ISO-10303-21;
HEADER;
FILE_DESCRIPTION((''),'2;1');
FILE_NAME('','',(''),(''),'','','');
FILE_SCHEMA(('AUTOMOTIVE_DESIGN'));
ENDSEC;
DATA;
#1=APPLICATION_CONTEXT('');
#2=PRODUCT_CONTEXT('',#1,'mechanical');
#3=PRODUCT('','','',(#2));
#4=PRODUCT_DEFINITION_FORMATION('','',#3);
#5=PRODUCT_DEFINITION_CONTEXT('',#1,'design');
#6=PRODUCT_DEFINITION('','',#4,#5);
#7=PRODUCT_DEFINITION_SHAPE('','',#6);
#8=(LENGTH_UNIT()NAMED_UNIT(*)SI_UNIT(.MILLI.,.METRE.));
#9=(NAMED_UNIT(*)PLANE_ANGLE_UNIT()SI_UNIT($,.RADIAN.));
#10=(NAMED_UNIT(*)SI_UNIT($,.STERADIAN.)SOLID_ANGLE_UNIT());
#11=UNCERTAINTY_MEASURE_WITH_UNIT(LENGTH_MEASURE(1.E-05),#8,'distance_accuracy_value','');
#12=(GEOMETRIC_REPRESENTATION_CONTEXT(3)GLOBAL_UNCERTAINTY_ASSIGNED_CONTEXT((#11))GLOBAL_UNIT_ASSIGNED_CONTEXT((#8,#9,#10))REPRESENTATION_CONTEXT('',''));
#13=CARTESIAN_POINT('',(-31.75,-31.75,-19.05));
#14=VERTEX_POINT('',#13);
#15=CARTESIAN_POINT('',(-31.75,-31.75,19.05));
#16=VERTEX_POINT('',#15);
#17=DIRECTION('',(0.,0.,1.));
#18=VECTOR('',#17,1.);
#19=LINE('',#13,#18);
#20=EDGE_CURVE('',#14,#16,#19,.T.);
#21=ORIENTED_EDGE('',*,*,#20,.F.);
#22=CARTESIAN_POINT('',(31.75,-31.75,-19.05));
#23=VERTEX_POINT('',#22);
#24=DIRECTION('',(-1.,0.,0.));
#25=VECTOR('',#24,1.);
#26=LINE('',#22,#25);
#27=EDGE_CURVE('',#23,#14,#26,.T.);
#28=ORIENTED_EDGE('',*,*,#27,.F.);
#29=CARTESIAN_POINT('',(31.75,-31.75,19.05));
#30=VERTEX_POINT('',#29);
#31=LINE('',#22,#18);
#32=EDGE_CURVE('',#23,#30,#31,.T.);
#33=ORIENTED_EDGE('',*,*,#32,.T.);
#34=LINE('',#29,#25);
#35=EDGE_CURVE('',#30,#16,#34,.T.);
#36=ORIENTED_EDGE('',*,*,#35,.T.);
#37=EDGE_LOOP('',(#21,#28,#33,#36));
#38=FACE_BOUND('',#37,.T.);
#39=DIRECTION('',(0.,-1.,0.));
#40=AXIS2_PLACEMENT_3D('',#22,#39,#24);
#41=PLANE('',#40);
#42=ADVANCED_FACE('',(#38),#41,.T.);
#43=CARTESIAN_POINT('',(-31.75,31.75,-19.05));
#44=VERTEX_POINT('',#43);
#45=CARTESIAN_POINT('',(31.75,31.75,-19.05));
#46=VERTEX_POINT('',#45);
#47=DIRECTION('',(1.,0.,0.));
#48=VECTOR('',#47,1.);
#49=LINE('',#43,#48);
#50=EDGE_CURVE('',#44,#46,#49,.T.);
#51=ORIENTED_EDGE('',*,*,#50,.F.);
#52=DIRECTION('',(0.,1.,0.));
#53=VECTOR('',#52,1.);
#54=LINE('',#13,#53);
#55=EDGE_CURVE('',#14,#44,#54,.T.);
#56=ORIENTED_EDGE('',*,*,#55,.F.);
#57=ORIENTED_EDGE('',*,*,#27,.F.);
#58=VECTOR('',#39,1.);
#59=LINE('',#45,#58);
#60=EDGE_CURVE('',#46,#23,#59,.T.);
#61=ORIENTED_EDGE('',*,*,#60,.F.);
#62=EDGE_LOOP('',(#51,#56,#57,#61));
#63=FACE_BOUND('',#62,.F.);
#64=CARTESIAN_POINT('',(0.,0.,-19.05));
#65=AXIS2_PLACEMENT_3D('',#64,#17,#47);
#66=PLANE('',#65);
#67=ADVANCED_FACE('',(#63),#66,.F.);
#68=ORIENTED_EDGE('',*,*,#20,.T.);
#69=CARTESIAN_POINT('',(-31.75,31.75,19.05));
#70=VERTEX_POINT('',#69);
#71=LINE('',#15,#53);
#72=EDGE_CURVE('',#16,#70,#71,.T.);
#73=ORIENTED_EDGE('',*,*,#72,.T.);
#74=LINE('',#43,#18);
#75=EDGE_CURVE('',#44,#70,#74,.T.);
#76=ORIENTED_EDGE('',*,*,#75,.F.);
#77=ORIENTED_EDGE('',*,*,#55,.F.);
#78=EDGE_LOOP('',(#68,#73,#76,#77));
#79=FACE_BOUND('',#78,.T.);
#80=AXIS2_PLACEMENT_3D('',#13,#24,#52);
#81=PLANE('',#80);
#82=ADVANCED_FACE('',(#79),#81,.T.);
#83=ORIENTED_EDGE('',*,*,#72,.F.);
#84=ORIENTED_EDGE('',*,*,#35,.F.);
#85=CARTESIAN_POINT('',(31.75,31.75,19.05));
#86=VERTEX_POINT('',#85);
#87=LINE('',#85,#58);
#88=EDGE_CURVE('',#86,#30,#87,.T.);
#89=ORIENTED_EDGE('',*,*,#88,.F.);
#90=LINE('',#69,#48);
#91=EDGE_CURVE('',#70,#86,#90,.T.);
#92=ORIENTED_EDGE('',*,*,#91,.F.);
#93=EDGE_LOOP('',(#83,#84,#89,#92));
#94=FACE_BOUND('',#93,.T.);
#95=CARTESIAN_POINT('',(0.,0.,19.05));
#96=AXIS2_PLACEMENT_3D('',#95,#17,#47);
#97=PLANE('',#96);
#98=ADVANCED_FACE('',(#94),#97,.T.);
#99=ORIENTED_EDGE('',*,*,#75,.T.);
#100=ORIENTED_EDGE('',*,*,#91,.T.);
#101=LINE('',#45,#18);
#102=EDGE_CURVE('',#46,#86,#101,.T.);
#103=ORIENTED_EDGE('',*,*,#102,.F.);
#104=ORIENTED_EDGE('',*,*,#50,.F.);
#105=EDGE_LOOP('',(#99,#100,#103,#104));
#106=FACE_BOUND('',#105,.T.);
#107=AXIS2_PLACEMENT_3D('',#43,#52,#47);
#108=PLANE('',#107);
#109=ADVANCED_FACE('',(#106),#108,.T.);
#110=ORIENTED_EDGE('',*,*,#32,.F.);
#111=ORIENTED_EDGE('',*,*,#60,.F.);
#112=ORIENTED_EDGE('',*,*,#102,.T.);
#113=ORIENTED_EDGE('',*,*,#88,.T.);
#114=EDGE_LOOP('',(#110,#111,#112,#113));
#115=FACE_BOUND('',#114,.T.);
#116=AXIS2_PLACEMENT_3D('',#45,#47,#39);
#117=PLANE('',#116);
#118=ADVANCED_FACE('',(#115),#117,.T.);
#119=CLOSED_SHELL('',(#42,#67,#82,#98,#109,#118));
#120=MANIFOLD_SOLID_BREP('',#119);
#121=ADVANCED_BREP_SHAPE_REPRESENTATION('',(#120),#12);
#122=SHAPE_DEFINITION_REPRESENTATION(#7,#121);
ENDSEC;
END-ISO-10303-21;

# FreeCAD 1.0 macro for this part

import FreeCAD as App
import Part
import Sketcher
from FreeCAD import Vector
Q = App.Units.Quantity

doc = App.newDocument("Part")
body = doc.addObject("PartDesign::Body", "Body")

# Sketch on XY plane
sketch1 = body.newObject("Sketcher::SketchObject", "Sketch")
sketch1.AttachmentSupport = (doc.getObject("XY_Plane"), [""])
sketch1.MapMode = "FlatFace"
sketch1.AttachmentOffset = App.Placement(Vector(0, 0, -0.75 * 25.4), App.Rotation())
sketch1.addGeometry([
    Part.LineSegment(Vector(31.75, 31.75, 0), Vector(-31.75, 31.75, 0)),
    Part.LineSegment(Vector(-31.75, 31.75, 0), Vector(-31.75, -31.75, 0)),
    Part.LineSegment(Vector(-31.75, -31.75, 0), Vector(31.75, -31.75, 0)),
    Part.LineSegment(Vector(31.75, -31.75, 0), Vector(31.75, 31.75, 0)),
], False)
sketch1.addConstraint([
    Sketcher.Constraint("Coincident", 0, 2, 1, 1),
    Sketcher.Constraint("Coincident", 1, 2, 2, 1),
    Sketcher.Constraint("Coincident", 2, 2, 3, 1),
    Sketcher.Constraint("Coincident", 3, 2, 0, 1),
    Sketcher.Constraint("Horizontal", 0),
    Sketcher.Constraint("Vertical", 1),
    Sketcher.Constraint("Horizontal", 2),
    Sketcher.Constraint("Vertical", 3),
    Sketcher.Constraint("Symmetric", 0, 2, 2, 2, -1, 1),
    Sketcher.Constraint("Equal", 2, 1),
    Sketcher.Constraint("DistanceX", 0, 2, -1, 1, Q("1.25 in")),
])
pad1 = body.newObject("PartDesign::Pad", "Pad")
pad1.Profile = sketch1
pad1.Length = Q("1.5 in")

doc.recompute()
